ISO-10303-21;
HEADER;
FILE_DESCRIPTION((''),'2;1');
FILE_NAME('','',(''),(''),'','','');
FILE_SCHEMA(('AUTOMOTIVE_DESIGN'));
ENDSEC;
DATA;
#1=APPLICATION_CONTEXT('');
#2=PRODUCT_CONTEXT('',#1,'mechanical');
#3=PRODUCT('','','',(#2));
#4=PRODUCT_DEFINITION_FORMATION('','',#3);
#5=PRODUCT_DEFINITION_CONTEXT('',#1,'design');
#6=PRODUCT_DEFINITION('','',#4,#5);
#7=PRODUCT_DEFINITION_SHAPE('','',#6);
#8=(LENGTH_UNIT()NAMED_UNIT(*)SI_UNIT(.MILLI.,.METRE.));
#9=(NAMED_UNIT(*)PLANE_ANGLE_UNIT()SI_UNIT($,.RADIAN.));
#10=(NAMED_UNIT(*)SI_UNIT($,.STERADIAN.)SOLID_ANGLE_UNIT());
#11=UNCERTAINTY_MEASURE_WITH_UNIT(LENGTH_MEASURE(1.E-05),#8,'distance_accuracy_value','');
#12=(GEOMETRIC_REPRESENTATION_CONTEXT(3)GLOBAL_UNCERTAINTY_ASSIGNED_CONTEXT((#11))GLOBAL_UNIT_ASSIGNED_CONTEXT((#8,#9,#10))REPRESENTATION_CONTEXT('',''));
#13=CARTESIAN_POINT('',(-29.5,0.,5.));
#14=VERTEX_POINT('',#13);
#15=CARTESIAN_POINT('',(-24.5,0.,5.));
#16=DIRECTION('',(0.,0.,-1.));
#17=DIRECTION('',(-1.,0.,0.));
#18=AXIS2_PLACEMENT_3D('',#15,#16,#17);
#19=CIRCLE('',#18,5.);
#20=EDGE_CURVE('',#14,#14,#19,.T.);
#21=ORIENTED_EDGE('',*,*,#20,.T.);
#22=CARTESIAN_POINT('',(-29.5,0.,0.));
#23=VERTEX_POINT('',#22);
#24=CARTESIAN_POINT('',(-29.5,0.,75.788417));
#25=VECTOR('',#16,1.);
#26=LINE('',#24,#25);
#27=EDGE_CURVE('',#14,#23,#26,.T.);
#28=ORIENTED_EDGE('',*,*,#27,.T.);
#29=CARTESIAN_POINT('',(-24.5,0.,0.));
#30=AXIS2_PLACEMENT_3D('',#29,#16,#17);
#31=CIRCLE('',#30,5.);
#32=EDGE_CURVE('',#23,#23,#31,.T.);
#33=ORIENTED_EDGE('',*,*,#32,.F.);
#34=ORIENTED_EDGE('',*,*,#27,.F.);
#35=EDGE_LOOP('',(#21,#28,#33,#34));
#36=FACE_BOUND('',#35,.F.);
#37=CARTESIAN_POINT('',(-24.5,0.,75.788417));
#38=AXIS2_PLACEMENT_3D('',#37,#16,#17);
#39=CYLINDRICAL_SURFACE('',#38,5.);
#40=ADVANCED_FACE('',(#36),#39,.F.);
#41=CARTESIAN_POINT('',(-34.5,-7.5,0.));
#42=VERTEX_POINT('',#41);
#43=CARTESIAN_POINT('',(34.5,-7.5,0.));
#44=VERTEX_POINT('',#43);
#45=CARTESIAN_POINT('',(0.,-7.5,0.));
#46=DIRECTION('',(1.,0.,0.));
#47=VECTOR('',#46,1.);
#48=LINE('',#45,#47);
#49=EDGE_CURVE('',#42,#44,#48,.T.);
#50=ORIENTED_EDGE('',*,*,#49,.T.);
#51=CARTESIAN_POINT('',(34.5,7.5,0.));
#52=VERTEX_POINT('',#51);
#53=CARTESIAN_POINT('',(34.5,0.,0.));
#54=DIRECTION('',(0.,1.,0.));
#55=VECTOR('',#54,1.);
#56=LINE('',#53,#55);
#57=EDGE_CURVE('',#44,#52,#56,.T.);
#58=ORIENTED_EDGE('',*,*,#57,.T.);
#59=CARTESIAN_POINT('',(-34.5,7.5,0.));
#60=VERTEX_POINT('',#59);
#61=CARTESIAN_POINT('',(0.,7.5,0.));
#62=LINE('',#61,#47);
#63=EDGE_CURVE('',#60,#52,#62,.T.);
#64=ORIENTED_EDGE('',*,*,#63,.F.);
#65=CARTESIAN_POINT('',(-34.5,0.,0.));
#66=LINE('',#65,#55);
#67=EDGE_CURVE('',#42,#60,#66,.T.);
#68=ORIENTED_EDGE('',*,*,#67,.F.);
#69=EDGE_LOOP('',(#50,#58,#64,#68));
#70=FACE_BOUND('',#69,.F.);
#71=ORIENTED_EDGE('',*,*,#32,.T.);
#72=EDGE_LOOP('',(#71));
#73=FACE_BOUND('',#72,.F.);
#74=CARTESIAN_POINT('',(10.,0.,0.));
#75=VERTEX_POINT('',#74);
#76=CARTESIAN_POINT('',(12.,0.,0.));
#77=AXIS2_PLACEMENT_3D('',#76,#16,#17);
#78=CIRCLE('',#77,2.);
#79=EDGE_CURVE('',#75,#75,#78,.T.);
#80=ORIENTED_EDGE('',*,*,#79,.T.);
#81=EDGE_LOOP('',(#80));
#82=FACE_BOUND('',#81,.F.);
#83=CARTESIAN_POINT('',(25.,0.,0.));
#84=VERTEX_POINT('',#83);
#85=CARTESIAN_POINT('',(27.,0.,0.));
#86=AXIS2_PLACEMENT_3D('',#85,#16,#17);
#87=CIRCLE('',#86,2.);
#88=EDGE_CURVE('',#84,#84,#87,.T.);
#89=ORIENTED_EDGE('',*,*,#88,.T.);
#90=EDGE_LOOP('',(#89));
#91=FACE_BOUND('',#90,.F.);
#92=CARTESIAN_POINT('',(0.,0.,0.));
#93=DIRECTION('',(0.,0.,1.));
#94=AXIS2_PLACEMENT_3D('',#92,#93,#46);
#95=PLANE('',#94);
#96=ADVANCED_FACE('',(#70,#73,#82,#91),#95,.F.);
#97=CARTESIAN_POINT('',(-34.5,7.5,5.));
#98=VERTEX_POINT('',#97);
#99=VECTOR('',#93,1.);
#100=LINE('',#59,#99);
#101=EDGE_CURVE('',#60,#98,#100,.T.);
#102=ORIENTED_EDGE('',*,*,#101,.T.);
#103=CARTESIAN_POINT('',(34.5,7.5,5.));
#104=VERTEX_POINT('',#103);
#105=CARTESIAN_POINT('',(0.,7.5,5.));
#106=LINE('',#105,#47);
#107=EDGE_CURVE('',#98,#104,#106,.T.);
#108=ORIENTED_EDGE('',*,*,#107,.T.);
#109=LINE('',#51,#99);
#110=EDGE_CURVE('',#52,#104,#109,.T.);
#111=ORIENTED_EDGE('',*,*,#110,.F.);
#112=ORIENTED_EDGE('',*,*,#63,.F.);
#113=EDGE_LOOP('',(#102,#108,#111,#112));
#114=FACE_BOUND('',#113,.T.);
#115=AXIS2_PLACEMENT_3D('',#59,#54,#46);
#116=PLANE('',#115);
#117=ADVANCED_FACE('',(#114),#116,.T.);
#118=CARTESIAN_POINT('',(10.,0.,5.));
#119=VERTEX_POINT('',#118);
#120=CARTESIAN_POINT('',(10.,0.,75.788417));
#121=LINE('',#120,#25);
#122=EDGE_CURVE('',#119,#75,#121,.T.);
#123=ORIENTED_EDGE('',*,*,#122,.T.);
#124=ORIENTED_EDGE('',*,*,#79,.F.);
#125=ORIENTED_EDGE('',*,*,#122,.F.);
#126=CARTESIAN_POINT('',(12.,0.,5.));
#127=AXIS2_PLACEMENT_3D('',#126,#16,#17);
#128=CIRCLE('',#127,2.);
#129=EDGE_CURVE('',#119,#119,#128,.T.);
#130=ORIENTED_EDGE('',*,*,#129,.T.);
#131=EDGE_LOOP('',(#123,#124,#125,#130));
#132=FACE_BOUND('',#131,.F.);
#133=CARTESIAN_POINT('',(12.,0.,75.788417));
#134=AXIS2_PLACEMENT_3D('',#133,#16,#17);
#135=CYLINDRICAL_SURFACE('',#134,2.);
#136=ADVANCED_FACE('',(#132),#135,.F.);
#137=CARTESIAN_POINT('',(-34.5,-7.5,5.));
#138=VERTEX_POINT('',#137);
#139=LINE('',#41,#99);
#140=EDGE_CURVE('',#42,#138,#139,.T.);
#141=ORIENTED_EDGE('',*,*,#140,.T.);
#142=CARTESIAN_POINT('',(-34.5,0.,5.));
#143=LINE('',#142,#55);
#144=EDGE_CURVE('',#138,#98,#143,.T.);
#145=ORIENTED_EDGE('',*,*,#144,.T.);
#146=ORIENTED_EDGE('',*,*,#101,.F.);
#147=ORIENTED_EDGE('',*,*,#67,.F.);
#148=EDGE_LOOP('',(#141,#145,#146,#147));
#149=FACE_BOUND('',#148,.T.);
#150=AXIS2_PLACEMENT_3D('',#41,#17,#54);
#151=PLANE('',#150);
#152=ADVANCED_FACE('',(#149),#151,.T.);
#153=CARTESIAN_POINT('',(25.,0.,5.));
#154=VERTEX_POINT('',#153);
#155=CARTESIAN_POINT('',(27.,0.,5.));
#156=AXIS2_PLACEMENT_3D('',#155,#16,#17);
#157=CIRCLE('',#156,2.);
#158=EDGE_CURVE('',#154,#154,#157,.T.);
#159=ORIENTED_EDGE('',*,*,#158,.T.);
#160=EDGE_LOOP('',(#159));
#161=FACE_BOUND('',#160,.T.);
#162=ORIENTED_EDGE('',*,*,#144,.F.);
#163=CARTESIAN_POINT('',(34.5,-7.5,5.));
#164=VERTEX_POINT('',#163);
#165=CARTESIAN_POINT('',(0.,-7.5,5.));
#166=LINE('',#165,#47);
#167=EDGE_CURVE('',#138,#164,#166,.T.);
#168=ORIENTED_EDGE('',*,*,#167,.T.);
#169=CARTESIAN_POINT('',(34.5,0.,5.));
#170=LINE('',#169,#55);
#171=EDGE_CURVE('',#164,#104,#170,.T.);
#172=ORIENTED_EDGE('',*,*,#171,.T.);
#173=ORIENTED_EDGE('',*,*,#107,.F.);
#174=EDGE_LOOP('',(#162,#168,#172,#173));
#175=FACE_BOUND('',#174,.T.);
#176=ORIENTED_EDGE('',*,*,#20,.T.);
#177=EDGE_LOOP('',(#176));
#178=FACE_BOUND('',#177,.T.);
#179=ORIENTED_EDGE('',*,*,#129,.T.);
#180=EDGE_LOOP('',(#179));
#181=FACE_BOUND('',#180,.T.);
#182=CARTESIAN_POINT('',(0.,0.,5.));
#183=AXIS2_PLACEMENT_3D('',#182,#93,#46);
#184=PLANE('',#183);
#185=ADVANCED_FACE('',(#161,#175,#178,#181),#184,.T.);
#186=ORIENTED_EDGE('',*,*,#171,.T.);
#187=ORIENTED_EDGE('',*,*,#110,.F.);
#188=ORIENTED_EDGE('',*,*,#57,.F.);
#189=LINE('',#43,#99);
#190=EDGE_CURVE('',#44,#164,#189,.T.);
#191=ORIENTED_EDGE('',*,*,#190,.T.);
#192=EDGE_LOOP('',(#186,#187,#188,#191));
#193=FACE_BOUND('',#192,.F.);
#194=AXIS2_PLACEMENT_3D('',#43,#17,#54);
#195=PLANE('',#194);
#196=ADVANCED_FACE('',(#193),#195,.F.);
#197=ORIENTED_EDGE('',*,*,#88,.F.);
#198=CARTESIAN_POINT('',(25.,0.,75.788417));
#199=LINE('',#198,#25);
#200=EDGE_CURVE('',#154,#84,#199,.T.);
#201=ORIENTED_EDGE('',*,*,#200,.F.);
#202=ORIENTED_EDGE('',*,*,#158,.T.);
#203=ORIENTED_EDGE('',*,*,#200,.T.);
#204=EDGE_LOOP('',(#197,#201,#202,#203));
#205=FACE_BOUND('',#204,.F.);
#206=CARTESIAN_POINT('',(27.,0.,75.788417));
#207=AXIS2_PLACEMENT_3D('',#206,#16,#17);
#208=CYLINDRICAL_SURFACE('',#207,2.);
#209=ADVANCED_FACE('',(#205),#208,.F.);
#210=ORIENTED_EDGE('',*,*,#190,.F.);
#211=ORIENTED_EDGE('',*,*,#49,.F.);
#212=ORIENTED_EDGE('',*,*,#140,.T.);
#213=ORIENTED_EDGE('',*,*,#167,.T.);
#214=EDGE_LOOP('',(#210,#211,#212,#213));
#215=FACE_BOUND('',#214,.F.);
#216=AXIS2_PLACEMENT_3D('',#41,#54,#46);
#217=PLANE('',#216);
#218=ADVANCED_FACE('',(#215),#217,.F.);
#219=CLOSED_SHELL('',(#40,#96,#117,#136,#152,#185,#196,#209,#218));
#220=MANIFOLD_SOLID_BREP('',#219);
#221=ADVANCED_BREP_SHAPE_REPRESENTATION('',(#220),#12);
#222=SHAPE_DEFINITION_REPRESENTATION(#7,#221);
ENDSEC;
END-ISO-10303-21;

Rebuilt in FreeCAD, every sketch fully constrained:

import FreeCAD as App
import Part
import Sketcher
Q = App.Units.Quantity


def add_polygon(sketch, points):
    """Adds a closed chain of lines whose ends are joined by coincident constraints."""
    first, n = sketch.GeometryCount, len(points)
    for a, b in zip(points, points[1:] + points[:1]):
        sketch.addGeometry(Part.LineSegment(App.Vector(*a, 0), App.Vector(*b, 0)), False)
    for i in range(n):
        sketch.addConstraint(Sketcher.Constraint("Coincident", first + i, 2, first + (i + 1) % n, 1))

doc = App.newDocument("Part")
body = doc.addObject("PartDesign::Body", "Body")

# Sketch on XY plane
sketch1 = body.newObject("Sketcher::SketchObject", "Sketch")
sketch1.AttachmentSupport = (doc.getObject("XY_Plane"), [""])
sketch1.MapMode = "FlatFace"
add_polygon(sketch1, [(-34, 8), (-34, -8), (34, -8), (34, 8)])  # lines 0-3
sketch1.addConstraint(Sketcher.Constraint("Vertical", 0))
sketch1.addConstraint(Sketcher.Constraint("Horizontal", 1))
sketch1.addConstraint(Sketcher.Constraint("Vertical", 2))
sketch1.addConstraint(Sketcher.Constraint("Horizontal", 3))
sketch1.addConstraint(Sketcher.Constraint("Symmetric", 0, 2, 2, 2, -1, 1))
sketch1.addConstraint(Sketcher.Constraint("DistanceX", 1, 1, 1, 2, Q("69 mm")))
sketch1.addConstraint(Sketcher.Constraint("DistanceY", 0, 2, 0, 1, Q("15 mm")))
pad1 = body.newObject("PartDesign::Pad", "Pad")
pad1.Profile = sketch1
pad1.Length = 5

# Sketch on XY plane
sketch2 = body.newObject("Sketcher::SketchObject", "Sketch001")
sketch2.AttachmentSupport = (doc.getObject("XY_Plane"), [""])
sketch2.MapMode = "FlatFace"
sketch2.AttachmentOffset = App.Placement(App.Vector(0, 0, 5), App.Rotation())
sketch2.addGeometry(Part.Circle(App.Vector(-24, 0, 0), App.Vector(0, 0, 1), 5), False)
sketch2.addConstraint(Sketcher.Constraint("PointOnObject", 0, 3, -1))
sketch2.addConstraint(Sketcher.Constraint("Diameter", 0, Q("10 mm")))
sketch2.addConstraint(Sketcher.Constraint("DistanceX", 0, 3, -1, 1, Q("24.5 mm")))
doc.recompute()
hole = body.newObject("PartDesign::Hole", "Hole")
hole.Profile = sketch2
hole.ThreadType = "None"
hole.Diameter = 10
hole.DepthType = "ThroughAll"

# Sketch on XY plane
sketch3 = body.newObject("Sketcher::SketchObject", "Sketch002")
sketch3.AttachmentSupport = (doc.getObject("XY_Plane"), [""])
sketch3.MapMode = "FlatFace"
sketch3.AttachmentOffset = App.Placement(App.Vector(0, 0, 5), App.Rotation())
sketch3.addGeometry(Part.Circle(App.Vector(12, 0, 0), App.Vector(0, 0, 1), 2), False)
sketch3.addGeometry(Part.Circle(App.Vector(27, 0, 0), App.Vector(0, 0, 1), 2), False)
sketch3.addConstraint(Sketcher.Constraint("Equal", 0, 1))
sketch3.addConstraint(Sketcher.Constraint("PointOnObject", 0, 3, -1))
sketch3.addConstraint(Sketcher.Constraint("PointOnObject", 1, 3, -1))
sketch3.addConstraint(Sketcher.Constraint("Diameter", 0, Q("4 mm")))
sketch3.addConstraint(Sketcher.Constraint("DistanceX", -1, 1, 0, 3, Q("12 mm")))
sketch3.addConstraint(Sketcher.Constraint("DistanceX", -1, 1, 1, 3, Q("27 mm")))
doc.recompute()
hole2 = body.newObject("PartDesign::Hole", "Hole001")
hole2.Profile = sketch3
hole2.ThreadType = "None"
hole2.Diameter = 4
hole2.DepthType = "ThroughAll"

doc.recompute()
